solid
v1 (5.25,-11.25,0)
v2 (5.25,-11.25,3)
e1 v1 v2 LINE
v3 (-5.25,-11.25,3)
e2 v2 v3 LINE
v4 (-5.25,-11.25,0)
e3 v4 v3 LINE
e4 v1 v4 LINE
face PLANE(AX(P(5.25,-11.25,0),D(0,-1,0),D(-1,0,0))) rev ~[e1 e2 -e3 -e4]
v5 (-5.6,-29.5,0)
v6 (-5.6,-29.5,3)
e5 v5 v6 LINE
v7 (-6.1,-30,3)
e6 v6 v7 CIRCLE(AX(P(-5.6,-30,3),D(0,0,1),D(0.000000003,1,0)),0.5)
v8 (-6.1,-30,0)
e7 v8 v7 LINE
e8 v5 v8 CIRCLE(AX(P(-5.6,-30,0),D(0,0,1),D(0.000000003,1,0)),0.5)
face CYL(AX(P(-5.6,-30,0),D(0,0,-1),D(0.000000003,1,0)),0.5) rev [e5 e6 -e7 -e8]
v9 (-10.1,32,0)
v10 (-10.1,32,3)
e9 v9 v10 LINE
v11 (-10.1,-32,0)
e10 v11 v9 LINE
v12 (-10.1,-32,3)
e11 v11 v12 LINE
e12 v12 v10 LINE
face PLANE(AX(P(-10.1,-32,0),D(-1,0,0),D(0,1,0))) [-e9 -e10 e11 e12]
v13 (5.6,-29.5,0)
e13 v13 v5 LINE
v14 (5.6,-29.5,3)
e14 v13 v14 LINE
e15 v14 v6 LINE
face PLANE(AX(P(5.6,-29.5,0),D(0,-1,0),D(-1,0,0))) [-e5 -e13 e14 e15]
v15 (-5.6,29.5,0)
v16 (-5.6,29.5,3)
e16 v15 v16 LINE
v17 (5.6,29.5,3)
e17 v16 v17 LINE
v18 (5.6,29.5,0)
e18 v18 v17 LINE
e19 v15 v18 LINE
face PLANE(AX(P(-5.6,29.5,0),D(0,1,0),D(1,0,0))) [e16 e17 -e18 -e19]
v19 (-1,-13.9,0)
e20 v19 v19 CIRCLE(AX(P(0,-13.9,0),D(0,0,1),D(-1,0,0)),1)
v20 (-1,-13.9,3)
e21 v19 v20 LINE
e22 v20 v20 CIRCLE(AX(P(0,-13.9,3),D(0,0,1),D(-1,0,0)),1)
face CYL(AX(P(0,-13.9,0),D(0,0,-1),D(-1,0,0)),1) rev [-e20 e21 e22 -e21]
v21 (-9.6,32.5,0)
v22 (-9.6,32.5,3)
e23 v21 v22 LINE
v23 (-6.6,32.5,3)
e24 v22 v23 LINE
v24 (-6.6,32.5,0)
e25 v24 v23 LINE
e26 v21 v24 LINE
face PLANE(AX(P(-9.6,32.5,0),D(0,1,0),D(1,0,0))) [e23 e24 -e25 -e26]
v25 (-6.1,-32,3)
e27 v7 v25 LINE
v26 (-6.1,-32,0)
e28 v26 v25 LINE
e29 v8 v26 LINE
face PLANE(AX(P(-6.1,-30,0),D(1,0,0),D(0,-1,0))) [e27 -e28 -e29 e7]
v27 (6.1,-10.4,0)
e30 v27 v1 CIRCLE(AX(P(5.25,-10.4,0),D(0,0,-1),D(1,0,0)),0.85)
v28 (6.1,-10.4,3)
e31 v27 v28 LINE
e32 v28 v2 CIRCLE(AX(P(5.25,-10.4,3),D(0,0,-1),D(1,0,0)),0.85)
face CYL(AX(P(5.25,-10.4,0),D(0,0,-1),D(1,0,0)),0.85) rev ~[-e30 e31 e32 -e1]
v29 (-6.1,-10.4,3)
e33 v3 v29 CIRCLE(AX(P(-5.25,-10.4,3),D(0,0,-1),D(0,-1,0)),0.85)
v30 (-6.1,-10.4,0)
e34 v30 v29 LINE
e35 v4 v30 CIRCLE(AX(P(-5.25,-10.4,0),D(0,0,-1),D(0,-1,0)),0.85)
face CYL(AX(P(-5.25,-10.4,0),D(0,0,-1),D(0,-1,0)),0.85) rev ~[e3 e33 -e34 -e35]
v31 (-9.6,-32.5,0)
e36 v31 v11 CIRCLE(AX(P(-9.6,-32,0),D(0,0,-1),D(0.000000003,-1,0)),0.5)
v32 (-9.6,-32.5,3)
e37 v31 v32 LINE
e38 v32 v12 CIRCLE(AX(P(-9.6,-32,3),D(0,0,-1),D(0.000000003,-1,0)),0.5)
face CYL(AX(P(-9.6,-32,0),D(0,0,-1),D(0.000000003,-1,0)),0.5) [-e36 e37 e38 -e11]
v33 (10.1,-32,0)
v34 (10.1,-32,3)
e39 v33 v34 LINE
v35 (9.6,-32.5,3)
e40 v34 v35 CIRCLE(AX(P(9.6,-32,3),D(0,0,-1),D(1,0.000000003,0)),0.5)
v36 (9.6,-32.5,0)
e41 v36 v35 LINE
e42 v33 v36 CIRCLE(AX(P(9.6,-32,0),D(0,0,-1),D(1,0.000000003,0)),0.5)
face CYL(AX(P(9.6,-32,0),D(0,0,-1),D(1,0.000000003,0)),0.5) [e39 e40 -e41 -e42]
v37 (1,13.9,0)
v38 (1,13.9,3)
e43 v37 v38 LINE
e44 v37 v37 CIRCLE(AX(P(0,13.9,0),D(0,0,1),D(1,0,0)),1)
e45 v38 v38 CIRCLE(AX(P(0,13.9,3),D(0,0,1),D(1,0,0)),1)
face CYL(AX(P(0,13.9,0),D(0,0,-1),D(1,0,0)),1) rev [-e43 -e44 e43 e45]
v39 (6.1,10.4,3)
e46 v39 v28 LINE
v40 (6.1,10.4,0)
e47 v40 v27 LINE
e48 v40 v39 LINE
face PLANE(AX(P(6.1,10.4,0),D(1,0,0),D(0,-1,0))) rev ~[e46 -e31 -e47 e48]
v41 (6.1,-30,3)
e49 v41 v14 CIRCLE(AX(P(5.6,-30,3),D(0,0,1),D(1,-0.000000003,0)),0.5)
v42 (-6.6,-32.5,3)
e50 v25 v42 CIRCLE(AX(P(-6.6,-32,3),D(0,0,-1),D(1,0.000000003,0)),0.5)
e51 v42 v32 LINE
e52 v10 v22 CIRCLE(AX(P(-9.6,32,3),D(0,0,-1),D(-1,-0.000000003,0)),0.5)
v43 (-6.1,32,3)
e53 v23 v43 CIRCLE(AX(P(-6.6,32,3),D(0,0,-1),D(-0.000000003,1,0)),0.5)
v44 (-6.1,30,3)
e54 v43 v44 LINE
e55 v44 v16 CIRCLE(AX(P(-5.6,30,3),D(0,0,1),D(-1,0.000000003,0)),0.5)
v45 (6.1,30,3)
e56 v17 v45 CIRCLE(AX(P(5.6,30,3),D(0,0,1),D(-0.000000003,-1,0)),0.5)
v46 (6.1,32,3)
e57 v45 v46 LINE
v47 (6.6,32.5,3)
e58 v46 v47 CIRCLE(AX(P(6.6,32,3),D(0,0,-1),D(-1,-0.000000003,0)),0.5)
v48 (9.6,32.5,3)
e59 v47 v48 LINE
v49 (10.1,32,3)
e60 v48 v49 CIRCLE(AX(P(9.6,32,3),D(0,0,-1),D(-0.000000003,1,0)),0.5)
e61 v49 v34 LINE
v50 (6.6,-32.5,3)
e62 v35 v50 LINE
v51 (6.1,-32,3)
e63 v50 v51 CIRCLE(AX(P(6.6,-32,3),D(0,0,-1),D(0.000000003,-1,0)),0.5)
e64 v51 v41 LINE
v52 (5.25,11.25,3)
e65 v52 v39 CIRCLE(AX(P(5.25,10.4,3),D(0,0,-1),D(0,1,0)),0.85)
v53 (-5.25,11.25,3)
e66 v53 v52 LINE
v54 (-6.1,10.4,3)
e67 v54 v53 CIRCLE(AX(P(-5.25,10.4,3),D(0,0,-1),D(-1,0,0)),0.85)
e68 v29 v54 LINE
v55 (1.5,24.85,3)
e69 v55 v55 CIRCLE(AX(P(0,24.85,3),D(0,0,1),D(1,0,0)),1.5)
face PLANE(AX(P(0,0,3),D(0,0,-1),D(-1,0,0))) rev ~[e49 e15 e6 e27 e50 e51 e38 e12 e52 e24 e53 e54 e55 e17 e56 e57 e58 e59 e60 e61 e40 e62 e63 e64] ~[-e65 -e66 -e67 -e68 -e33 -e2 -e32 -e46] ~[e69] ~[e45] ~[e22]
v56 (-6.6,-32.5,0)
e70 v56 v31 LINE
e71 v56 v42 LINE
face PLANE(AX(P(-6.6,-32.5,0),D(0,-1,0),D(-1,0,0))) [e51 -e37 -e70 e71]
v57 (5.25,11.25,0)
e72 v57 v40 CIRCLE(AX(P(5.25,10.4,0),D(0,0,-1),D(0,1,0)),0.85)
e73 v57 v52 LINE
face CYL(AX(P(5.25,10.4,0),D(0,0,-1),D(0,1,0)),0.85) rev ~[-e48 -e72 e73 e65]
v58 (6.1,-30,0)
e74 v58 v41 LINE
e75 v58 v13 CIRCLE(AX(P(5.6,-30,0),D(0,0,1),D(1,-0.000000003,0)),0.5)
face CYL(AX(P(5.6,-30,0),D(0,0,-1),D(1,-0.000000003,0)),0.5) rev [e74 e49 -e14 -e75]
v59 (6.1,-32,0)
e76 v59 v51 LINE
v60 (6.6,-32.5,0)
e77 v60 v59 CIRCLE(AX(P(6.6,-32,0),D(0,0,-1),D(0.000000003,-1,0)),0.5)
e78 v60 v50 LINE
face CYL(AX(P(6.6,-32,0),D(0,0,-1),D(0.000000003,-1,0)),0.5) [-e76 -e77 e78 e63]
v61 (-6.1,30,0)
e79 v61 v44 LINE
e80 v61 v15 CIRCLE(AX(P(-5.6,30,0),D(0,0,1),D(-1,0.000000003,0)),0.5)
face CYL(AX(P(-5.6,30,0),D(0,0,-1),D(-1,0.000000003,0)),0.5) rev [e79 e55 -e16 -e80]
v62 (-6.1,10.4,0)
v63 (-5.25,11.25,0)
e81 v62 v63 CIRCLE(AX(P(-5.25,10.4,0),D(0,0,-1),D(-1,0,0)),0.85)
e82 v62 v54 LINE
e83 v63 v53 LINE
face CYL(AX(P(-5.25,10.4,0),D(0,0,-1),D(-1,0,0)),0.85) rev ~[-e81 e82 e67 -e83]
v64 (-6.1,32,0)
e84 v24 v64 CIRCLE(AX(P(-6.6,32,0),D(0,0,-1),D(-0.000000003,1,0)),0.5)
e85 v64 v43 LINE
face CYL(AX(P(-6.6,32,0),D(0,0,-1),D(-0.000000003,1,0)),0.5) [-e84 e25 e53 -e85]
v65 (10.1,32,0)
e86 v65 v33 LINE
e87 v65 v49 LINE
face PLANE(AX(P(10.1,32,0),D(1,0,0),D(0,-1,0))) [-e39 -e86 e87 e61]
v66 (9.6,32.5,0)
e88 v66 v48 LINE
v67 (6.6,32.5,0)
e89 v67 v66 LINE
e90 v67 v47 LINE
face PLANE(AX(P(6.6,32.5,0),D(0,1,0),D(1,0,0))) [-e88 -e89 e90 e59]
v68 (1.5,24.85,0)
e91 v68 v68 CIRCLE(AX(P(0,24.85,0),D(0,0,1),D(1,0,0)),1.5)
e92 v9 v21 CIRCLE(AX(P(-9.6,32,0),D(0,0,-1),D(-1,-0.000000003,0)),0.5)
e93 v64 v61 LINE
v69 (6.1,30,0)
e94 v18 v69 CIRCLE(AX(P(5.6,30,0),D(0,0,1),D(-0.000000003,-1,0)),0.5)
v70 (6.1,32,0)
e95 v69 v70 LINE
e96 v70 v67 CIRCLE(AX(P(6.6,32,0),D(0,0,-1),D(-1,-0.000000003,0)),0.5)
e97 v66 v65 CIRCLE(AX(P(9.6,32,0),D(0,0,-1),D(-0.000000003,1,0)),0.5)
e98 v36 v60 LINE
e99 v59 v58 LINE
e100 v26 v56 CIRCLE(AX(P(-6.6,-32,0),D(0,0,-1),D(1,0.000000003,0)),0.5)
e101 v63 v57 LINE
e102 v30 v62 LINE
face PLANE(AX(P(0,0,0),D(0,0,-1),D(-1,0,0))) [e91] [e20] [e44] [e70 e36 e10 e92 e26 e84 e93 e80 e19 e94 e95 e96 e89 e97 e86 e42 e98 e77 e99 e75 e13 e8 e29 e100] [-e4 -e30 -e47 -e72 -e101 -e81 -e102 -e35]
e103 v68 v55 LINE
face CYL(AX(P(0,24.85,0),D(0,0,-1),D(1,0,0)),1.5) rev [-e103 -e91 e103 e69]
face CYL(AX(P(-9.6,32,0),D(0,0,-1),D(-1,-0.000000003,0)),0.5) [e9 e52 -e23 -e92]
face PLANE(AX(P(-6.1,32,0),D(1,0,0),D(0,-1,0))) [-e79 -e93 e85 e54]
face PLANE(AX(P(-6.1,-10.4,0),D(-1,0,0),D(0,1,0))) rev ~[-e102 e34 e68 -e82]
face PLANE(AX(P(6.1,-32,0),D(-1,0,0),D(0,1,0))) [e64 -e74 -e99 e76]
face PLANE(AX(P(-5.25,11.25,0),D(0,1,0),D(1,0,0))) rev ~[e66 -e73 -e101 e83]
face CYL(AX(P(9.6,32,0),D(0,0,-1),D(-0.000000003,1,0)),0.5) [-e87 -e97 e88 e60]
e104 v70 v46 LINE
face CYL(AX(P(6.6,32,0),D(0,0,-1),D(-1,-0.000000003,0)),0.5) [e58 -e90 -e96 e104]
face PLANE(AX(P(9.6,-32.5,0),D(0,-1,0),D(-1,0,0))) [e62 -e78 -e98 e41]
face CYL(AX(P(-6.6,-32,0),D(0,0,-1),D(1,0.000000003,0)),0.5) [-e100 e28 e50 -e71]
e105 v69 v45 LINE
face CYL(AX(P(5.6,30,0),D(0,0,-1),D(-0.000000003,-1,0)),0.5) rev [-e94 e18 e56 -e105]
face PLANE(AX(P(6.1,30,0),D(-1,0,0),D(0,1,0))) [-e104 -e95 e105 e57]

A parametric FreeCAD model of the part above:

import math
import FreeCAD as App
import Part
import Sketcher
Q = App.Units.Quantity

doc = App.newDocument("Part")
body = doc.addObject("PartDesign::Body", "Body")

# Sketch on XY plane
sketch1 = body.newObject("Sketcher::SketchObject", "Sketch")
sketch1.AttachmentSupport = (doc.getObject("XY_Plane"), [""])
sketch1.MapMode = "FlatFace"
sketch1.addGeometry(Part.LineSegment(App.Vector(-5.6, -29.5, 0), App.Vector(5.6, -29.5, 0)), False)
sketch1.addGeometry(Part.ArcOfCircle(Part.Circle(App.Vector(5.6, -30, 0), App.Vector(0, 0, 1), 0.5), math.radians(0), math.radians(90)), False)
sketch1.addGeometry(Part.LineSegment(App.Vector(6.1, -30, 0), App.Vector(6.1, -32, 0)), False)
sketch1.addGeometry(Part.ArcOfCircle(Part.Circle(App.Vector(6.6, -32, 0), App.Vector(0, 0, 1), 0.5), math.radians(180), math.radians(270)), False)
sketch1.addGeometry(Part.LineSegment(App.Vector(6.6, -32.5, 0), App.Vector(9.6, -32.5, 0)), False)
sketch1.addGeometry(Part.ArcOfCircle(Part.Circle(App.Vector(9.6, -32, 0), App.Vector(0, 0, 1), 0.5), math.radians(-90), math.radians(0)), False)
sketch1.addGeometry(Part.LineSegment(App.Vector(10.1, -32, 0), App.Vector(10.1, 32, 0)), False)
sketch1.addGeometry(Part.ArcOfCircle(Part.Circle(App.Vector(9.6, 32, 0), App.Vector(0, 0, 1), 0.5), math.radians(0), math.radians(90)), False)
sketch1.addGeometry(Part.LineSegment(App.Vector(9.6, 32.5, 0), App.Vector(6.6, 32.5, 0)), False)
sketch1.addGeometry(Part.ArcOfCircle(Part.Circle(App.Vector(6.6, 32, 0), App.Vector(0, 0, 1), 0.5), math.radians(90), math.radians(180)), False)
sketch1.addGeometry(Part.LineSegment(App.Vector(6.1, 32, 0), App.Vector(6.1, 30, 0)), False)
sketch1.addGeometry(Part.ArcOfCircle(Part.Circle(App.Vector(5.6, 30, 0), App.Vector(0, 0, 1), 0.5), math.radians(-90), math.radians(0)), False)
sketch1.addGeometry(Part.LineSegment(App.Vector(5.6, 29.5, 0), App.Vector(-5.6, 29.5, 0)), False)
sketch1.addGeometry(Part.ArcOfCircle(Part.Circle(App.Vector(-5.6, 30, 0), App.Vector(0, 0, 1), 0.5), math.radians(180), math.radians(270)), False)
sketch1.addGeometry(Part.LineSegment(App.Vector(-6.1, 30, 0), App.Vector(-6.1, 32, 0)), False)
sketch1.addGeometry(Part.ArcOfCircle(Part.Circle(App.Vector(-6.6, 32, 0), App.Vector(0, 0, 1), 0.5), math.radians(0), math.radians(90)), False)
sketch1.addGeometry(Part.LineSegment(App.Vector(-6.6, 32.5, 0), App.Vector(-9.6, 32.5, 0)), False)
sketch1.addGeometry(Part.ArcOfCircle(Part.Circle(App.Vector(-9.6, 32, 0), App.Vector(0, 0, 1), 0.5), math.radians(90), math.radians(180)), False)
sketch1.addGeometry(Part.LineSegment(App.Vector(-10.1, 32, 0), App.Vector(-10.1, -32, 0)), False)
sketch1.addGeometry(Part.ArcOfCircle(Part.Circle(App.Vector(-9.6, -32, 0), App.Vector(0, 0, 1), 0.5), math.radians(180), math.radians(270)), False)
sketch1.addGeometry(Part.LineSegment(App.Vector(-9.6, -32.5, 0), App.Vector(-6.6, -32.5, 0)), False)
sketch1.addGeometry(Part.ArcOfCircle(Part.Circle(App.Vector(-6.6, -32, 0), App.Vector(0, 0, 1), 0.5), math.radians(-90), math.radians(0)), False)
sketch1.addGeometry(Part.LineSegment(App.Vector(-6.1, -32, 0), App.Vector(-6.1, -30, 0)), False)
sketch1.addGeometry(Part.ArcOfCircle(Part.Circle(App.Vector(-5.6, -30, 0), App.Vector(0, 0, 1), 0.5), math.radians(90), math.radians(180)), False)
sketch1.addGeometry(Part.Circle(App.Vector(0, -13.9, 0), App.Vector(0, 0, 1), 1), False)
sketch1.addGeometry(Part.LineSegment(App.Vector(5.25, -11.25, 0), App.Vector(-5.25, -11.25, 0)), False)
sketch1.addGeometry(Part.ArcOfCircle(Part.Circle(App.Vector(-5.25, -10.4, 0), App.Vector(0, 0, 1), 0.85), math.radians(180), math.radians(270)), False)
sketch1.addGeometry(Part.LineSegment(App.Vector(-6.1, -10.4, 0), App.Vector(-6.1, 10.4, 0)), False)
sketch1.addGeometry(Part.ArcOfCircle(Part.Circle(App.Vector(-5.25, 10.4, 0), App.Vector(0, 0, 1), 0.85), math.radians(90), math.radians(180)), False)
sketch1.addGeometry(Part.LineSegment(App.Vector(-5.25, 11.25, 0), App.Vector(5.25, 11.25, 0)), False)
sketch1.addGeometry(Part.ArcOfCircle(Part.Circle(App.Vector(5.25, 10.4, 0), App.Vector(0, 0, 1), 0.85), math.radians(0), math.radians(90)), False)
sketch1.addGeometry(Part.LineSegment(App.Vector(6.1, 10.4, 0), App.Vector(6.1, -10.4, 0)), False)
sketch1.addGeometry(Part.ArcOfCircle(Part.Circle(App.Vector(5.25, -10.4, 0), App.Vector(0, 0, 1), 0.85), math.radians(-90), math.radians(0)), False)
sketch1.addGeometry(Part.Circle(App.Vector(0, 13.9, 0), App.Vector(0, 0, 1), 1), False)
sketch1.addGeometry(Part.Circle(App.Vector(0, 24.85, 0), App.Vector(0, 0, 1), 1.5), False)
sketch1.addConstraint(Sketcher.Constraint("Tangent", 0, 2, 1, 2))
sketch1.addConstraint(Sketcher.Constraint("Tangent", 1, 1, 2, 1))
sketch1.addConstraint(Sketcher.Constraint("Tangent", 2, 2, 3, 1))
sketch1.addConstraint(Sketcher.Constraint("Tangent", 3, 2, 4, 1))
sketch1.addConstraint(Sketcher.Constraint("Tangent", 4, 2, 5, 1))
sketch1.addConstraint(Sketcher.Constraint("Tangent", 5, 2, 6, 1))
sketch1.addConstraint(Sketcher.Constraint("Tangent", 6, 2, 7, 1))
sketch1.addConstraint(Sketcher.Constraint("Tangent", 7, 2, 8, 1))
sketch1.addConstraint(Sketcher.Constraint("Tangent", 8, 2, 9, 1))
sketch1.addConstraint(Sketcher.Constraint("Tangent", 9, 2, 10, 1))
sketch1.addConstraint(Sketcher.Constraint("Tangent", 10, 2, 11, 2))
sketch1.addConstraint(Sketcher.Constraint("Tangent", 11, 1, 12, 1))
sketch1.addConstraint(Sketcher.Constraint("Tangent", 12, 2, 13, 2))
sketch1.addConstraint(Sketcher.Constraint("Tangent", 13, 1, 14, 1))
sketch1.addConstraint(Sketcher.Constraint("Tangent", 14, 2, 15, 1))
sketch1.addConstraint(Sketcher.Constraint("Tangent", 15, 2, 16, 1))
sketch1.addConstraint(Sketcher.Constraint("Tangent", 16, 2, 17, 1))
sketch1.addConstraint(Sketcher.Constraint("Tangent", 17, 2, 18, 1))
sketch1.addConstraint(Sketcher.Constraint("Tangent", 18, 2, 19, 1))
sketch1.addConstraint(Sketcher.Constraint("Tangent", 19, 2, 20, 1))
sketch1.addConstraint(Sketcher.Constraint("Tangent", 20, 2, 21, 1))
sketch1.addConstraint(Sketcher.Constraint("Tangent", 21, 2, 22, 1))
sketch1.addConstraint(Sketcher.Constraint("Tangent", 22, 2, 23, 2))
sketch1.addConstraint(Sketcher.Constraint("Tangent", 23, 1, 0, 1))
sketch1.addConstraint(Sketcher.Constraint("Tangent", 25, 2, 26, 2))
sketch1.addConstraint(Sketcher.Constraint("Tangent", 26, 1, 27, 1))
sketch1.addConstraint(Sketcher.Constraint("Tangent", 27, 2, 28, 2))
sketch1.addConstraint(Sketcher.Constraint("Tangent", 28, 1, 29, 1))
sketch1.addConstraint(Sketcher.Constraint("Tangent", 29, 2, 30, 2))
sketch1.addConstraint(Sketcher.Constraint("Tangent", 30, 1, 31, 1))
sketch1.addConstraint(Sketcher.Constraint("Tangent", 31, 2, 32, 2))
sketch1.addConstraint(Sketcher.Constraint("Tangent", 32, 1, 25, 1))
sketch1.addConstraint(Sketcher.Constraint("Horizontal", 0))
sketch1.addConstraint(Sketcher.Constraint("Vertical", 2))
sketch1.addConstraint(Sketcher.Constraint("Horizontal", 4))
sketch1.addConstraint(Sketcher.Constraint("Vertical", 6))
sketch1.addConstraint(Sketcher.Constraint("Horizontal", 8))
sketch1.addConstraint(Sketcher.Constraint("Vertical", 10))
sketch1.addConstraint(Sketcher.Constraint("Horizontal", 12))
sketch1.addConstraint(Sketcher.Constraint("Vertical", 14))
sketch1.addConstraint(Sketcher.Constraint("Horizontal", 16))
sketch1.addConstraint(Sketcher.Constraint("Vertical", 18))
sketch1.addConstraint(Sketcher.Constraint("Horizontal", 20))
sketch1.addConstraint(Sketcher.Constraint("Vertical", 22))
sketch1.addConstraint(Sketcher.Constraint("Horizontal", 25))
sketch1.addConstraint(Sketcher.Constraint("Vertical", 27))
sketch1.addConstraint(Sketcher.Constraint("Horizontal", 29))
sketch1.addConstraint(Sketcher.Constraint("Vertical", 31))
sketch1.addConstraint(Sketcher.Constraint("Equal", 1, 3))
sketch1.addConstraint(Sketcher.Constraint("Equal", 3, 5))
sketch1.addConstraint(Sketcher.Constraint("Equal", 5, 7))
sketch1.addConstraint(Sketcher.Constraint("Equal", 7, 9))
sketch1.addConstraint(Sketcher.Constraint("Equal", 9, 11))
sketch1.addConstraint(Sketcher.Constraint("Equal", 11, 13))
sketch1.addConstraint(Sketcher.Constraint("Equal", 13, 15))
sketch1.addConstraint(Sketcher.Constraint("Equal", 15, 17))
sketch1.addConstraint(Sketcher.Constraint("Equal", 17, 19))
sketch1.addConstraint(Sketcher.Constraint("Equal", 19, 21))
sketch1.addConstraint(Sketcher.Constraint("Equal", 21, 23))
sketch1.addConstraint(Sketcher.Constraint("Equal", 26, 28))
sketch1.addConstraint(Sketcher.Constraint("Equal", 28, 30))
sketch1.addConstraint(Sketcher.Constraint("Equal", 30, 32))
sketch1.addConstraint(Sketcher.Constraint("Equal", 24, 33))
sketch1.addConstraint(Sketcher.Constraint("Symmetric", 1, 3, 13, 3, -1, 1))
sketch1.addConstraint(Sketcher.Constraint("Symmetric", 5, 3, 17, 3, -1, 1))
sketch1.addConstraint(Sketcher.Constraint("Symmetric", 9, 3, 21, 3, -1, 1))
sketch1.addConstraint(Sketcher.Constraint("Symmetric", 26, 3, 30, 3, -1, 1))
sketch1.addConstraint(Sketcher.Constraint("Symmetric", 24, 3, 33, 3, -1, 1))
sketch1.addConstraint(Sketcher.Constraint("Symmetric", 9, 3, 15, 3, -2))
sketch1.addConstraint(Sketcher.Constraint("PointOnObject", 24, 3, -2))
sketch1.addConstraint(Sketcher.Constraint("PointOnObject", 34, 3, -2))
sketch1.addConstraint(Sketcher.Constraint("Vertical", 22, 2, 26, 1))
sketch1.addConstraint(Sketcher.Constraint("Diameter", 24, Q("2 mm")))
sketch1.addConstraint(Sketcher.Constraint("Diameter", 34, Q("3 mm")))
sketch1.addConstraint(Sketcher.Constraint("Radius", 1, Q("0.5 mm")))
sketch1.addConstraint(Sketcher.Constraint("DistanceX", 4, 1, 4, 2, Q("3 mm")))
sketch1.addConstraint(Sketcher.Constraint("DistanceY", 2, 2, 2, 1, Q("2 mm")))
sketch1.addConstraint(Sketcher.Constraint("DistanceY", 6, 1, 6, 2, Q("64 mm")))
sketch1.addConstraint(Sketcher.Constraint("Radius", 26, Q("0.85 mm")))
sketch1.addConstraint(Sketcher.Constraint("DistanceX", 0, 1, 0, 2, Q("11.2 mm")))
sketch1.addConstraint(Sketcher.Constraint("DistanceY", 27, 1, 27, 2, Q("20.8 mm")))
sketch1.addConstraint(Sketcher.Constraint("DistanceY", 24, 3, -1, 1, Q("13.9 mm")))
sketch1.addConstraint(Sketcher.Constraint("DistanceY", 28, 1, 34, 3, Q("13.6 mm")))
pad1 = body.newObject("PartDesign::Pad", "Pad")
pad1.Profile = sketch1
pad1.Length = 3

doc.recompute()
